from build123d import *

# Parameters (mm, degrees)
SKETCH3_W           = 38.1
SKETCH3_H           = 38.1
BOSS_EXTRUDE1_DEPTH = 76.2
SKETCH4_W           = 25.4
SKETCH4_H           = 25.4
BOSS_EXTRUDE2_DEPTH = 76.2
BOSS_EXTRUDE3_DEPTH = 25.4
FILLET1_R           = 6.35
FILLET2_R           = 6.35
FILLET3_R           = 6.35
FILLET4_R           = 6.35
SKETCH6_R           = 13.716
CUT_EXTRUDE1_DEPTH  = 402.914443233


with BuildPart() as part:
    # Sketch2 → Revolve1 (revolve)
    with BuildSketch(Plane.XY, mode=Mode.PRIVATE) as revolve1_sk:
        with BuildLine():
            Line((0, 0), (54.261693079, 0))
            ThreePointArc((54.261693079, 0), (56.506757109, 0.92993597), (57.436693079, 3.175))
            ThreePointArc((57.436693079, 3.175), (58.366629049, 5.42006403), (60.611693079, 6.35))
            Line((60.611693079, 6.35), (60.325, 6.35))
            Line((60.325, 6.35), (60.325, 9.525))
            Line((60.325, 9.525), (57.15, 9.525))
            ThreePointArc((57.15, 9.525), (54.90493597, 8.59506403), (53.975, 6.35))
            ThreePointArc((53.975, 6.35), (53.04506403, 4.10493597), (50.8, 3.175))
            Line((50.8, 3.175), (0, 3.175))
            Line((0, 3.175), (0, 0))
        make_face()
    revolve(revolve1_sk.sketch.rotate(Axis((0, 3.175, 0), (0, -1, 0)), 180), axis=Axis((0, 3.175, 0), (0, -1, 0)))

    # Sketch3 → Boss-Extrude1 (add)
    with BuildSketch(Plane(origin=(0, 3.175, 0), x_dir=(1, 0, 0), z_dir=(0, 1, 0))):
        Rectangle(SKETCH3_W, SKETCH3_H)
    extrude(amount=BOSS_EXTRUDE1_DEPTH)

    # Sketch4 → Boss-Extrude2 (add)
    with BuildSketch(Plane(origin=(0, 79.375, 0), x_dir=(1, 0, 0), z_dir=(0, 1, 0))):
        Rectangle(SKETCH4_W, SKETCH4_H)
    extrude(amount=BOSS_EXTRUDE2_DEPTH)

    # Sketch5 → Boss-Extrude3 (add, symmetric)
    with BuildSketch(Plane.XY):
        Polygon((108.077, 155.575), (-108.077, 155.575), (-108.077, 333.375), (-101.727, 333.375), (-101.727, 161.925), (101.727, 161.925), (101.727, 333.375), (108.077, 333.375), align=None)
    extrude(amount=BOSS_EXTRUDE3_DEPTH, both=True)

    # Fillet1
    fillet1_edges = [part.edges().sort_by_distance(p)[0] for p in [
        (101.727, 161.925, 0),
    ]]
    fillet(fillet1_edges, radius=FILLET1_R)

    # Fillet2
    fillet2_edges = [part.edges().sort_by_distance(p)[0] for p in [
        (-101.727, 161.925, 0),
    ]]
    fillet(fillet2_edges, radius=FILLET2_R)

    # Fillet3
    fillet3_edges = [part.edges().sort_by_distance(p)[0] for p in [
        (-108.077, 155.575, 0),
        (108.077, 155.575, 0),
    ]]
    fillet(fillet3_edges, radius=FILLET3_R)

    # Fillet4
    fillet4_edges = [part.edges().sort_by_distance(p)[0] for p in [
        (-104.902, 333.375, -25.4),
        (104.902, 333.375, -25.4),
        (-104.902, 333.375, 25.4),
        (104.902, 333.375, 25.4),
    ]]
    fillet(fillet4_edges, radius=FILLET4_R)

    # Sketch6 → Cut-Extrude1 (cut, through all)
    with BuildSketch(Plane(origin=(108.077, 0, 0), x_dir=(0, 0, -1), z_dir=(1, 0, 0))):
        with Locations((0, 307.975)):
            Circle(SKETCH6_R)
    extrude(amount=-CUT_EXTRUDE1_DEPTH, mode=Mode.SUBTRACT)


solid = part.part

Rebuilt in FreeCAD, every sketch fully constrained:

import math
import FreeCAD as App
import Part
import Sketcher
Q = App.Units.Quantity


def edges_at(feature, points):
    """Names of the edges that pass closest to the given points."""
    edges = feature.Shape.Edges
    near = lambda p: min(range(len(edges)), key=lambda i: edges[i].distToShape(Part.Vertex(*p))[0])
    return sorted({f"Edge{near(p) + 1}" for p in points})

doc = App.newDocument("Part")
params = doc.addObject("Spreadsheet::Sheet", "Params")
for row, (alias, value) in enumerate([
    ("sketch1_width", "2 in"),
    ("sketch1_radius", "0.125 in"),
    ("revolution_angle", "360 deg"),
    ("sketch2_width", "1.5 in"),
    ("pad1_length", "3 in"),
    ("sketch3_width", "1 in"),
    ("pad2_length", "3 in"),
    ("sketch4_height", "7 in"),
    ("sketch4_width", "8.51 in"),
    ("sketch4_width2", "0.25 in"),
    ("sketch4_height2", "6.75 in"),
    ("pad3_length", "2 in"),
    ("fillet_radius", "0.25 in"),
    ("fillet2_radius", "0.25 in"),
    ("fillet3_radius", "0.25 in"),
    ("fillet4_radius", "0.25 in"),
    ("sketch5_diameter", "1.08 in"),
], start=1):
    params.set(f"A{row}", alias)
    params.set(f"B{row}", "=" + value)
    params.setAlias(f"B{row}", alias)

body = doc.addObject("PartDesign::Body", "Body")

# Sketch on XY plane
sketch1 = body.newObject("Sketcher::SketchObject", "Sketch")
sketch1.AttachmentSupport = (doc.getObject("XY_Plane"), [""])
sketch1.MapMode = "FlatFace"
sketch1.addGeometry([
    Part.LineSegment(App.Vector(0, 0, 0), App.Vector(54.26, 0, 0)),  # 0
    Part.ArcOfCircle(Part.Circle(App.Vector(54.26, 3.18, 0), App.Vector(0, 0, 1), 3.18), math.radians(-90), math.radians(0)),  # 1
    Part.ArcOfCircle(Part.Circle(App.Vector(60.61, 3.17, 0), App.Vector(0, 0, 1), 3.18), math.radians(90), math.radians(180)),  # 2
    Part.LineSegment(App.Vector(60.61, 6.35, 0), App.Vector(60.33, 6.35, 0)),  # 3
    Part.LineSegment(App.Vector(60.33, 6.35, 0), App.Vector(60.33, 9.53, 0)),  # 4
    Part.LineSegment(App.Vector(60.33, 9.53, 0), App.Vector(57.15, 9.53, 0)),  # 5
    Part.ArcOfCircle(Part.Circle(App.Vector(57.15, 6.35, 0), App.Vector(0, 0, 1), 3.18), math.radians(90), math.radians(180)),  # 6
    Part.ArcOfCircle(Part.Circle(App.Vector(50.8, 6.35, 0), App.Vector(0, 0, 1), 3.18), math.radians(-90), math.radians(0)),  # 7
    Part.LineSegment(App.Vector(50.8, 3.17, 0), App.Vector(0, 3.17, 0)),  # 8
    Part.LineSegment(App.Vector(0, 3.17, 0), App.Vector(0, 0, 0)),  # 9
], False)
sketch1.addConstraint([
    Sketcher.Constraint("Tangent", 0, 2, 1, 1),
    Sketcher.Constraint("Tangent", 1, 2, 2, 2),
    Sketcher.Constraint("Tangent", 2, 1, 3, 1),
    Sketcher.Constraint("Coincident", 3, 2, 4, 1),
    Sketcher.Constraint("Coincident", 4, 2, 5, 1),
    Sketcher.Constraint("Tangent", 5, 2, 6, 1),
    Sketcher.Constraint("Tangent", 6, 2, 7, 2),
    Sketcher.Constraint("Tangent", 7, 1, 8, 1),
    Sketcher.Constraint("Coincident", 8, 2, 9, 1),
    Sketcher.Constraint("Coincident", 9, 2, 0, 1),
    Sketcher.Constraint("Horizontal", 0),
    Sketcher.Constraint("Horizontal", 3),
    Sketcher.Constraint("Vertical", 4),
    Sketcher.Constraint("Horizontal", 5),
    Sketcher.Constraint("Horizontal", 8),
    Sketcher.Constraint("Vertical", 9),
    Sketcher.Constraint("Coincident", 9, 2, -1, 1),
    Sketcher.Constraint("Equal", 1, 2),
    Sketcher.Constraint("Equal", 2, 6),
    Sketcher.Constraint("Equal", 6, 7),
    Sketcher.Constraint("Horizontal", 1, 3, 2, 3),
    Sketcher.Constraint("Horizontal", 6, 3, 7, 3),
    Sketcher.Constraint("Horizontal", 7, 3, 2, 1),
    Sketcher.Constraint("Equal", 5, 4),
    Sketcher.Constraint("DistanceX", 8, 2, 8, 1, Q("2 in")),
    Sketcher.Constraint("Radius", 1, Q("0.125 in")),
    Sketcher.Constraint("DistanceX", 0, 1, 0, 2, 54.261693),
])
sketch1.setExpression("Constraints[24]", "Params.sketch1_width")
sketch1.setExpression("Constraints[25]", "Params.sketch1_radius")
revolution = body.newObject("PartDesign::Revolution", "Revolution")
revolution.Profile = sketch1
revolution.ReferenceAxis = (sketch1, ["V_Axis"])
revolution.setExpression("Angle", "Params.revolution_angle")

# Sketch on XZ plane
sketch2 = body.newObject("Sketcher::SketchObject", "Sketch001")
sketch2.AttachmentSupport = (doc.getObject("XZ_Plane"), [""])
sketch2.MapMode = "FlatFace"
sketch2.AttachmentOffset = App.Placement(App.Vector(0, 0, -0.125 * 25.4), App.Rotation())
sketch2.addGeometry([
    Part.LineSegment(App.Vector(-19, -19, 0), App.Vector(-19, 19, 0)),
    Part.LineSegment(App.Vector(-19, 19, 0), App.Vector(19, 19, 0)),
    Part.LineSegment(App.Vector(19, 19, 0), App.Vector(19, -19, 0)),
    Part.LineSegment(App.Vector(19, -19, 0), App.Vector(-19, -19, 0)),
], False)
sketch2.addConstraint([
    Sketcher.Constraint("Coincident", 0, 2, 1, 1),
    Sketcher.Constraint("Coincident", 1, 2, 2, 1),
    Sketcher.Constraint("Coincident", 2, 2, 3, 1),
    Sketcher.Constraint("Coincident", 3, 2, 0, 1),
    Sketcher.Constraint("Vertical", 0),
    Sketcher.Constraint("Horizontal", 1),
    Sketcher.Constraint("Vertical", 2),
    Sketcher.Constraint("Horizontal", 3),
    Sketcher.Constraint("Symmetric", 0, 2, 2, 2, -1, 1),
    Sketcher.Constraint("Equal", 3, 0),
    Sketcher.Constraint("DistanceX", 1, 1, 1, 2, Q("1.5 in")),
])
sketch2.setExpression("Constraints[10]", "Params.sketch2_width")
pad1 = body.newObject("PartDesign::Pad", "Pad")
pad1.Profile = sketch2
pad1.setExpression("Length", "Params.pad1_length")
pad1.Reversed = True

# Sketch on XZ plane
sketch3 = body.newObject("Sketcher::SketchObject", "Sketch002")
sketch3.AttachmentSupport = (doc.getObject("XZ_Plane"), [""])
sketch3.MapMode = "FlatFace"
sketch3.AttachmentOffset = App.Placement(App.Vector(0, 0, -3.125 * 25.4), App.Rotation())
sketch3.addGeometry([
    Part.LineSegment(App.Vector(-13, -13, 0), App.Vector(-13, 13, 0)),
    Part.LineSegment(App.Vector(-13, 13, 0), App.Vector(13, 13, 0)),
    Part.LineSegment(App.Vector(13, 13, 0), App.Vector(13, -13, 0)),
    Part.LineSegment(App.Vector(13, -13, 0), App.Vector(-13, -13, 0)),
], False)
sketch3.addConstraint([
    Sketcher.Constraint("Coincident", 0, 2, 1, 1),
    Sketcher.Constraint("Coincident", 1, 2, 2, 1),
    Sketcher.Constraint("Coincident", 2, 2, 3, 1),
    Sketcher.Constraint("Coincident", 3, 2, 0, 1),
    Sketcher.Constraint("Vertical", 0),
    Sketcher.Constraint("Horizontal", 1),
    Sketcher.Constraint("Vertical", 2),
    Sketcher.Constraint("Horizontal", 3),
    Sketcher.Constraint("Symmetric", 0, 2, 2, 2, -1, 1),
    Sketcher.Constraint("Equal", 3, 0),
    Sketcher.Constraint("DistanceX", 1, 1, 1, 2, Q("1 in")),
])
sketch3.setExpression("Constraints[10]", "Params.sketch3_width")
pad2 = body.newObject("PartDesign::Pad", "Pad001")
pad2.Profile = sketch3
pad2.setExpression("Length", "Params.pad2_length")
pad2.Reversed = True

# Sketch on XY plane
sketch4 = body.newObject("Sketcher::SketchObject", "Sketch003")
sketch4.AttachmentSupport = (doc.getObject("XY_Plane"), [""])
sketch4.MapMode = "FlatFace"
sketch4.addGeometry([
    Part.LineSegment(App.Vector(-108, 156, 0), App.Vector(108, 156, 0)),  # 0
    Part.LineSegment(App.Vector(108, 156, 0), App.Vector(108, 333, 0)),  # 1
    Part.LineSegment(App.Vector(108, 333, 0), App.Vector(102, 333, 0)),  # 2
    Part.LineSegment(App.Vector(102, 333, 0), App.Vector(102, 162, 0)),  # 3
    Part.LineSegment(App.Vector(102, 162, 0), App.Vector(-102, 162, 0)),  # 4
    Part.LineSegment(App.Vector(-102, 162, 0), App.Vector(-102, 333, 0)),  # 5
    Part.LineSegment(App.Vector(-102, 333, 0), App.Vector(-108, 333, 0)),  # 6
    Part.LineSegment(App.Vector(-108, 333, 0), App.Vector(-108, 156, 0)),  # 7
], False)
sketch4.addConstraint([
    Sketcher.Constraint("Coincident", 0, 2, 1, 1),
    Sketcher.Constraint("Coincident", 1, 2, 2, 1),
    Sketcher.Constraint("Coincident", 2, 2, 3, 1),
    Sketcher.Constraint("Coincident", 3, 2, 4, 1),
    Sketcher.Constraint("Coincident", 4, 2, 5, 1),
    Sketcher.Constraint("Coincident", 5, 2, 6, 1),
    Sketcher.Constraint("Coincident", 6, 2, 7, 1),
    Sketcher.Constraint("Coincident", 7, 2, 0, 1),
    Sketcher.Constraint("Horizontal", 0),
    Sketcher.Constraint("Vertical", 1),
    Sketcher.Constraint("Horizontal", 2),
    Sketcher.Constraint("Vertical", 3),
    Sketcher.Constraint("Horizontal", 4),
    Sketcher.Constraint("Vertical", 5),
    Sketcher.Constraint("Horizontal", 6),
    Sketcher.Constraint("Vertical", 7),
    Sketcher.Constraint("Symmetric", 2, 2, 5, 2, -2),
    Sketcher.Constraint("Equal", 2, 6),
    Sketcher.Constraint("DistanceY", 1, 1, 1, 2, Q("7 in")),
    Sketcher.Constraint("DistanceX", 0, 1, 0, 2, Q("8.51 in")),
    Sketcher.Constraint("DistanceX", 2, 2, 2, 1, Q("0.25 in")),
    Sketcher.Constraint("DistanceY", 3, 2, 3, 1, Q("6.75 in")),
    Sketcher.Constraint("DistanceY", -1, 1, 0, 2, Q("6.125 in")),
])
sketch4.setExpression("Constraints[18]", "Params.sketch4_height")
sketch4.setExpression("Constraints[19]", "Params.sketch4_width")
sketch4.setExpression("Constraints[20]", "Params.sketch4_width2")
sketch4.setExpression("Constraints[21]", "Params.sketch4_height2")
pad3 = body.newObject("PartDesign::Pad", "Pad002")
pad3.Profile = sketch4
pad3.setExpression("Length", "Params.pad3_length")
pad3.Midplane = True
doc.recompute()

fillet = body.newObject("PartDesign::Fillet", "Fillet")
fillet.Base = (pad3, edges_at(pad3, [(101.727, 161.925, 0)]))
fillet.setExpression("Radius", "Params.fillet_radius")
doc.recompute()

fillet2 = body.newObject("PartDesign::Fillet", "Fillet001")
fillet2.Base = (fillet, edges_at(fillet, [(-101.727, 161.925, 0)]))
fillet2.setExpression("Radius", "Params.fillet2_radius")
doc.recompute()

fillet3 = body.newObject("PartDesign::Fillet", "Fillet002")
fillet3.Base = (fillet2, edges_at(fillet2, [(-108.077, 155.575, 0), (108.077, 155.575, 0)]))
fillet3.setExpression("Radius", "Params.fillet3_radius")
doc.recompute()

fillet4 = body.newObject("PartDesign::Fillet", "Fillet003")
fillet4.Base = (fillet3, edges_at(fillet3, [
    (-104.902, 333.375, -25.4),
    (104.902, 333.375, -25.4),
    (-104.902, 333.375, 25.4),
    (104.902, 333.375, 25.4),
]))
fillet4.setExpression("Radius", "Params.fillet4_radius")

# Sketch on YZ plane
sketch5 = body.newObject("Sketcher::SketchObject", "Sketch004")
sketch5.AttachmentSupport = (doc.getObject("YZ_Plane"), [""])
sketch5.MapMode = "FlatFace"
sketch5.AttachmentOffset = App.Placement(App.Vector(0, 0, 4.255 * 25.4), App.Rotation())
sketch5.addGeometry(Part.Circle(App.Vector(308, 0, 0), App.Vector(0, 0, 1), 14), False)
sketch5.addConstraint([
    Sketcher.Constraint("PointOnObject", 0, 3, -1),
    Sketcher.Constraint("Diameter", 0, Q("1.08 in")),
    Sketcher.Constraint("DistanceX", -1, 1, 0, 3, Q("12.125 in")),
])
sketch5.setExpression("Constraints[1]", "Params.sketch5_diameter")
pocket1 = body.newObject("PartDesign::Pocket", "Pocket")
pocket1.Profile = sketch5
pocket1.Type = "ThroughAll"

doc.recompute()
